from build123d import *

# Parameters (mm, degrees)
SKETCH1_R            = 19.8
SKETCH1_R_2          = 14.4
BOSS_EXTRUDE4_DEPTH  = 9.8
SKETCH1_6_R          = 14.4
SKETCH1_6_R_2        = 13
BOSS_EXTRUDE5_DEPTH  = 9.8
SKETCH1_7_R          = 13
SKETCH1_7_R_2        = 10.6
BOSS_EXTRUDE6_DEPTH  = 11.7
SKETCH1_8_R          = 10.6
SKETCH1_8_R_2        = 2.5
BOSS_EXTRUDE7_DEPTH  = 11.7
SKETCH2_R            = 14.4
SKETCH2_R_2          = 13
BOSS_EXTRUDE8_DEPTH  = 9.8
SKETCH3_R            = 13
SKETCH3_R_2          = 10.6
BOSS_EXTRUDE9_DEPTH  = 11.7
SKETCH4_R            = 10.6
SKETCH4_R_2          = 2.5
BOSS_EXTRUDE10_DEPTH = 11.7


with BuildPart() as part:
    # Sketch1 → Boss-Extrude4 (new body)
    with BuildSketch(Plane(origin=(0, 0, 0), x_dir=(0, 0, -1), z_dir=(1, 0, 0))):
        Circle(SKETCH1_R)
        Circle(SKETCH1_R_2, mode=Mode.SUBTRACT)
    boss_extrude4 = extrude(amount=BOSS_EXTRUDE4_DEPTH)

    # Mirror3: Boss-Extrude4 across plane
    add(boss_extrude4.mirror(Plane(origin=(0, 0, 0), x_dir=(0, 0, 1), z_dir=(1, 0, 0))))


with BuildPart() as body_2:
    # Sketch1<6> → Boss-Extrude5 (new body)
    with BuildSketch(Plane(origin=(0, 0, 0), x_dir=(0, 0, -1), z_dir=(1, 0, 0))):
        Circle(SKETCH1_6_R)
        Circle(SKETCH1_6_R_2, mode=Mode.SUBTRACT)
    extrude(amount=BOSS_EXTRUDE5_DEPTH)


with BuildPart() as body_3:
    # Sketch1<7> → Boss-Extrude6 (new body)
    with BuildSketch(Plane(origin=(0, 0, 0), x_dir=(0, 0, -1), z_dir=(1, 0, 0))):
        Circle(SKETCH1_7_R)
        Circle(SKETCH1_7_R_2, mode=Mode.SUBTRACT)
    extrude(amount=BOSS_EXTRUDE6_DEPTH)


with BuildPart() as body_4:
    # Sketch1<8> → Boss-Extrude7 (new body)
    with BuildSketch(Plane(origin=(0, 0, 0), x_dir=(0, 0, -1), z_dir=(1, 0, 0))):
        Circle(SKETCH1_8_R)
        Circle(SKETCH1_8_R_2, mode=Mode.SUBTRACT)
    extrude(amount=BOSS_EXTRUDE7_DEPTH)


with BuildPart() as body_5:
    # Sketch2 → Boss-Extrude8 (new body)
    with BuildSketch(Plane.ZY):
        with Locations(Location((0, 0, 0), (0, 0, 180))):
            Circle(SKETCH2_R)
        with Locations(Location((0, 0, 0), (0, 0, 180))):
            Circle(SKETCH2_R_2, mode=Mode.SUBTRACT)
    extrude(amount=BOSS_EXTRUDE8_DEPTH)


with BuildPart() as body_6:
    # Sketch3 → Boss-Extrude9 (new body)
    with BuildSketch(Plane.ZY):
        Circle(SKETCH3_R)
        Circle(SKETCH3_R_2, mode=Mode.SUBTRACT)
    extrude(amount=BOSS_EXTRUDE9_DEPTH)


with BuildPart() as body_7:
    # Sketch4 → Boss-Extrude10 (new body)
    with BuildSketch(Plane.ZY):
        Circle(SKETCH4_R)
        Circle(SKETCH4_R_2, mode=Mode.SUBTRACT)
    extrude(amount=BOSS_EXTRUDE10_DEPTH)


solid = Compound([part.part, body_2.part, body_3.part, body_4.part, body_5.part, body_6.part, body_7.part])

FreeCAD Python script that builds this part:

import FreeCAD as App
import Part
import Sketcher
from FreeCAD import Vector
Q = App.Units.Quantity

doc = App.newDocument("Part")
body = doc.addObject("PartDesign::Body", "Body")

sketch1 = body.newObject("Sketcher::SketchObject", "Sketch")
sketch1.AttachmentSupport = (doc.getObject("YZ_Plane"), [""])
sketch1.MapMode = "FlatFace"
sketch1.addGeometry(Part.Circle(Vector(0, 0, 0), Vector(0, 0, 1), 20), False)
sketch1.addGeometry(Part.Circle(Vector(0, 0, 0), Vector(0, 0, 1), 14), False)
sketch1.addConstraint(Sketcher.Constraint("Coincident", 0, 3, -1, 1))
sketch1.addConstraint(Sketcher.Constraint("Coincident", 1, 3, -1, 1))
sketch1.addConstraint(Sketcher.Constraint("Diameter", 0, Q("39.6 mm")))
sketch1.addConstraint(Sketcher.Constraint("Diameter", 1, Q("28.8 mm")))
pad1 = body.newObject("PartDesign::Pad", "Pad")
pad1.Profile = sketch1
pad1.Length = 9.8
doc.recompute()

mirrored = body.newObject("PartDesign::Mirrored", "Mirrored")
mirrored.Originals = [pad1]
mirrored.MirrorPlane = (doc.getObject("YZ_Plane"), [""])
body.Tip = mirrored
body2 = doc.addObject("PartDesign::Body", "Body001")

sketch2 = body2.newObject("Sketcher::SketchObject", "Sketch001")
sketch2.AttachmentSupport = (doc.getObject("YZ_Plane001"), [""])
sketch2.MapMode = "FlatFace"
sketch2.addGeometry(Part.Circle(Vector(0, 0, 0), Vector(0, 0, 1), 14), False)
sketch2.addGeometry(Part.Circle(Vector(0, 0, 0), Vector(0, 0, 1), 13), False)
sketch2.addConstraint(Sketcher.Constraint("Coincident", 0, 3, -1, 1))
sketch2.addConstraint(Sketcher.Constraint("Coincident", 1, 3, -1, 1))
sketch2.addConstraint(Sketcher.Constraint("Diameter", 1, Q("26 mm")))
sketch2.addConstraint(Sketcher.Constraint("Diameter", 0, Q("28.8 mm")))
pad2 = body2.newObject("PartDesign::Pad", "Pad001")
pad2.Profile = sketch2
pad2.Length = 9.8
body3 = doc.addObject("PartDesign::Body", "Body002")

sketch3 = body3.newObject("Sketcher::SketchObject", "Sketch002")
sketch3.AttachmentSupport = (doc.getObject("YZ_Plane002"), [""])
sketch3.MapMode = "FlatFace"
sketch3.addGeometry(Part.Circle(Vector(0, 0, 0), Vector(0, 0, 1), 13), False)
sketch3.addGeometry(Part.Circle(Vector(0, 0, 0), Vector(0, 0, 1), 11), False)
sketch3.addConstraint(Sketcher.Constraint("Coincident", 0, 3, -1, 1))
sketch3.addConstraint(Sketcher.Constraint("Coincident", 1, 3, -1, 1))
sketch3.addConstraint(Sketcher.Constraint("Diameter", 0, Q("26 mm")))
sketch3.addConstraint(Sketcher.Constraint("Diameter", 1, Q("21.2 mm")))
pad3 = body3.newObject("PartDesign::Pad", "Pad002")
pad3.Profile = sketch3
pad3.Length = 11.7
body4 = doc.addObject("PartDesign::Body", "Body003")

sketch4 = body4.newObject("Sketcher::SketchObject", "Sketch003")
sketch4.AttachmentSupport = (doc.getObject("YZ_Plane003"), [""])
sketch4.MapMode = "FlatFace"
sketch4.addGeometry(Part.Circle(Vector(0, 0, 0), Vector(0, 0, 1), 10.6), False)
sketch4.addGeometry(Part.Circle(Vector(0, 0, 0), Vector(0, 0, 1), 2.5), False)
sketch4.addConstraint(Sketcher.Constraint("Coincident", 0, 3, -1, 1))
sketch4.addConstraint(Sketcher.Constraint("Coincident", 1, 3, -1, 1))
sketch4.addConstraint(Sketcher.Constraint("Diameter", 1, Q("5 mm")))
sketch4.addConstraint(Sketcher.Constraint("Diameter", 0, Q("21.2 mm")))
pad4 = body4.newObject("PartDesign::Pad", "Pad003")
pad4.Profile = sketch4
pad4.Length = 11.7
body5 = doc.addObject("PartDesign::Body", "Body004")

sketch5 = body5.newObject("Sketcher::SketchObject", "Sketch004")
sketch5.AttachmentSupport = (doc.getObject("YZ_Plane004"), [""])
sketch5.MapMode = "FlatFace"
sketch5.addGeometry(Part.Circle(Vector(0, 0, 0), Vector(0, 0, 1), 14), False)
sketch5.addGeometry(Part.Circle(Vector(0, 0, 0), Vector(0, 0, 1), 13), False)
sketch5.addConstraint(Sketcher.Constraint("Coincident", 0, 3, -1, 1))
sketch5.addConstraint(Sketcher.Constraint("Coincident", 1, 3, -1, 1))
sketch5.addConstraint(Sketcher.Constraint("Diameter", 1, Q("26 mm")))
sketch5.addConstraint(Sketcher.Constraint("Diameter", 0, Q("28.8 mm")))
pad5 = body5.newObject("PartDesign::Pad", "Pad004")
pad5.Profile = sketch5
pad5.Length = 9.8
pad5.Reversed = True
body6 = doc.addObject("PartDesign::Body", "Body005")

sketch6 = body6.newObject("Sketcher::SketchObject", "Sketch005")
sketch6.AttachmentSupport = (doc.getObject("YZ_Plane005"), [""])
sketch6.MapMode = "FlatFace"
sketch6.addGeometry(Part.Circle(Vector(0, 0, 0), Vector(0, 0, 1), 13), False)
sketch6.addGeometry(Part.Circle(Vector(0, 0, 0), Vector(0, 0, 1), 11), False)
sketch6.addConstraint(Sketcher.Constraint("Coincident", 0, 3, -1, 1))
sketch6.addConstraint(Sketcher.Constraint("Coincident", 1, 3, -1, 1))
sketch6.addConstraint(Sketcher.Constraint("Diameter", 0, Q("26 mm")))
sketch6.addConstraint(Sketcher.Constraint("Diameter", 1, Q("21.2 mm")))
pad6 = body6.newObject("PartDesign::Pad", "Pad005")
pad6.Profile = sketch6
pad6.Length = 11.7
pad6.Reversed = True
body7 = doc.addObject("PartDesign::Body", "Body006")

sketch7 = body7.newObject("Sketcher::SketchObject", "Sketch006")
sketch7.AttachmentSupport = (doc.getObject("YZ_Plane006"), [""])
sketch7.MapMode = "FlatFace"
sketch7.addGeometry(Part.Circle(Vector(0, 0, 0), Vector(0, 0, 1), 10.6), False)
sketch7.addGeometry(Part.Circle(Vector(0, 0, 0), Vector(0, 0, 1), 2.5), False)
sketch7.addConstraint(Sketcher.Constraint("Coincident", 0, 3, -1, 1))
sketch7.addConstraint(Sketcher.Constraint("Coincident", 1, 3, -1, 1))
sketch7.addConstraint(Sketcher.Constraint("Diameter", 1, Q("5 mm")))
sketch7.addConstraint(Sketcher.Constraint("Diameter", 0, Q("21.2 mm")))
pad7 = body7.newObject("PartDesign::Pad", "Pad006")
pad7.Profile = sketch7
pad7.Length = 11.7
pad7.Reversed = True

doc.recompute()
